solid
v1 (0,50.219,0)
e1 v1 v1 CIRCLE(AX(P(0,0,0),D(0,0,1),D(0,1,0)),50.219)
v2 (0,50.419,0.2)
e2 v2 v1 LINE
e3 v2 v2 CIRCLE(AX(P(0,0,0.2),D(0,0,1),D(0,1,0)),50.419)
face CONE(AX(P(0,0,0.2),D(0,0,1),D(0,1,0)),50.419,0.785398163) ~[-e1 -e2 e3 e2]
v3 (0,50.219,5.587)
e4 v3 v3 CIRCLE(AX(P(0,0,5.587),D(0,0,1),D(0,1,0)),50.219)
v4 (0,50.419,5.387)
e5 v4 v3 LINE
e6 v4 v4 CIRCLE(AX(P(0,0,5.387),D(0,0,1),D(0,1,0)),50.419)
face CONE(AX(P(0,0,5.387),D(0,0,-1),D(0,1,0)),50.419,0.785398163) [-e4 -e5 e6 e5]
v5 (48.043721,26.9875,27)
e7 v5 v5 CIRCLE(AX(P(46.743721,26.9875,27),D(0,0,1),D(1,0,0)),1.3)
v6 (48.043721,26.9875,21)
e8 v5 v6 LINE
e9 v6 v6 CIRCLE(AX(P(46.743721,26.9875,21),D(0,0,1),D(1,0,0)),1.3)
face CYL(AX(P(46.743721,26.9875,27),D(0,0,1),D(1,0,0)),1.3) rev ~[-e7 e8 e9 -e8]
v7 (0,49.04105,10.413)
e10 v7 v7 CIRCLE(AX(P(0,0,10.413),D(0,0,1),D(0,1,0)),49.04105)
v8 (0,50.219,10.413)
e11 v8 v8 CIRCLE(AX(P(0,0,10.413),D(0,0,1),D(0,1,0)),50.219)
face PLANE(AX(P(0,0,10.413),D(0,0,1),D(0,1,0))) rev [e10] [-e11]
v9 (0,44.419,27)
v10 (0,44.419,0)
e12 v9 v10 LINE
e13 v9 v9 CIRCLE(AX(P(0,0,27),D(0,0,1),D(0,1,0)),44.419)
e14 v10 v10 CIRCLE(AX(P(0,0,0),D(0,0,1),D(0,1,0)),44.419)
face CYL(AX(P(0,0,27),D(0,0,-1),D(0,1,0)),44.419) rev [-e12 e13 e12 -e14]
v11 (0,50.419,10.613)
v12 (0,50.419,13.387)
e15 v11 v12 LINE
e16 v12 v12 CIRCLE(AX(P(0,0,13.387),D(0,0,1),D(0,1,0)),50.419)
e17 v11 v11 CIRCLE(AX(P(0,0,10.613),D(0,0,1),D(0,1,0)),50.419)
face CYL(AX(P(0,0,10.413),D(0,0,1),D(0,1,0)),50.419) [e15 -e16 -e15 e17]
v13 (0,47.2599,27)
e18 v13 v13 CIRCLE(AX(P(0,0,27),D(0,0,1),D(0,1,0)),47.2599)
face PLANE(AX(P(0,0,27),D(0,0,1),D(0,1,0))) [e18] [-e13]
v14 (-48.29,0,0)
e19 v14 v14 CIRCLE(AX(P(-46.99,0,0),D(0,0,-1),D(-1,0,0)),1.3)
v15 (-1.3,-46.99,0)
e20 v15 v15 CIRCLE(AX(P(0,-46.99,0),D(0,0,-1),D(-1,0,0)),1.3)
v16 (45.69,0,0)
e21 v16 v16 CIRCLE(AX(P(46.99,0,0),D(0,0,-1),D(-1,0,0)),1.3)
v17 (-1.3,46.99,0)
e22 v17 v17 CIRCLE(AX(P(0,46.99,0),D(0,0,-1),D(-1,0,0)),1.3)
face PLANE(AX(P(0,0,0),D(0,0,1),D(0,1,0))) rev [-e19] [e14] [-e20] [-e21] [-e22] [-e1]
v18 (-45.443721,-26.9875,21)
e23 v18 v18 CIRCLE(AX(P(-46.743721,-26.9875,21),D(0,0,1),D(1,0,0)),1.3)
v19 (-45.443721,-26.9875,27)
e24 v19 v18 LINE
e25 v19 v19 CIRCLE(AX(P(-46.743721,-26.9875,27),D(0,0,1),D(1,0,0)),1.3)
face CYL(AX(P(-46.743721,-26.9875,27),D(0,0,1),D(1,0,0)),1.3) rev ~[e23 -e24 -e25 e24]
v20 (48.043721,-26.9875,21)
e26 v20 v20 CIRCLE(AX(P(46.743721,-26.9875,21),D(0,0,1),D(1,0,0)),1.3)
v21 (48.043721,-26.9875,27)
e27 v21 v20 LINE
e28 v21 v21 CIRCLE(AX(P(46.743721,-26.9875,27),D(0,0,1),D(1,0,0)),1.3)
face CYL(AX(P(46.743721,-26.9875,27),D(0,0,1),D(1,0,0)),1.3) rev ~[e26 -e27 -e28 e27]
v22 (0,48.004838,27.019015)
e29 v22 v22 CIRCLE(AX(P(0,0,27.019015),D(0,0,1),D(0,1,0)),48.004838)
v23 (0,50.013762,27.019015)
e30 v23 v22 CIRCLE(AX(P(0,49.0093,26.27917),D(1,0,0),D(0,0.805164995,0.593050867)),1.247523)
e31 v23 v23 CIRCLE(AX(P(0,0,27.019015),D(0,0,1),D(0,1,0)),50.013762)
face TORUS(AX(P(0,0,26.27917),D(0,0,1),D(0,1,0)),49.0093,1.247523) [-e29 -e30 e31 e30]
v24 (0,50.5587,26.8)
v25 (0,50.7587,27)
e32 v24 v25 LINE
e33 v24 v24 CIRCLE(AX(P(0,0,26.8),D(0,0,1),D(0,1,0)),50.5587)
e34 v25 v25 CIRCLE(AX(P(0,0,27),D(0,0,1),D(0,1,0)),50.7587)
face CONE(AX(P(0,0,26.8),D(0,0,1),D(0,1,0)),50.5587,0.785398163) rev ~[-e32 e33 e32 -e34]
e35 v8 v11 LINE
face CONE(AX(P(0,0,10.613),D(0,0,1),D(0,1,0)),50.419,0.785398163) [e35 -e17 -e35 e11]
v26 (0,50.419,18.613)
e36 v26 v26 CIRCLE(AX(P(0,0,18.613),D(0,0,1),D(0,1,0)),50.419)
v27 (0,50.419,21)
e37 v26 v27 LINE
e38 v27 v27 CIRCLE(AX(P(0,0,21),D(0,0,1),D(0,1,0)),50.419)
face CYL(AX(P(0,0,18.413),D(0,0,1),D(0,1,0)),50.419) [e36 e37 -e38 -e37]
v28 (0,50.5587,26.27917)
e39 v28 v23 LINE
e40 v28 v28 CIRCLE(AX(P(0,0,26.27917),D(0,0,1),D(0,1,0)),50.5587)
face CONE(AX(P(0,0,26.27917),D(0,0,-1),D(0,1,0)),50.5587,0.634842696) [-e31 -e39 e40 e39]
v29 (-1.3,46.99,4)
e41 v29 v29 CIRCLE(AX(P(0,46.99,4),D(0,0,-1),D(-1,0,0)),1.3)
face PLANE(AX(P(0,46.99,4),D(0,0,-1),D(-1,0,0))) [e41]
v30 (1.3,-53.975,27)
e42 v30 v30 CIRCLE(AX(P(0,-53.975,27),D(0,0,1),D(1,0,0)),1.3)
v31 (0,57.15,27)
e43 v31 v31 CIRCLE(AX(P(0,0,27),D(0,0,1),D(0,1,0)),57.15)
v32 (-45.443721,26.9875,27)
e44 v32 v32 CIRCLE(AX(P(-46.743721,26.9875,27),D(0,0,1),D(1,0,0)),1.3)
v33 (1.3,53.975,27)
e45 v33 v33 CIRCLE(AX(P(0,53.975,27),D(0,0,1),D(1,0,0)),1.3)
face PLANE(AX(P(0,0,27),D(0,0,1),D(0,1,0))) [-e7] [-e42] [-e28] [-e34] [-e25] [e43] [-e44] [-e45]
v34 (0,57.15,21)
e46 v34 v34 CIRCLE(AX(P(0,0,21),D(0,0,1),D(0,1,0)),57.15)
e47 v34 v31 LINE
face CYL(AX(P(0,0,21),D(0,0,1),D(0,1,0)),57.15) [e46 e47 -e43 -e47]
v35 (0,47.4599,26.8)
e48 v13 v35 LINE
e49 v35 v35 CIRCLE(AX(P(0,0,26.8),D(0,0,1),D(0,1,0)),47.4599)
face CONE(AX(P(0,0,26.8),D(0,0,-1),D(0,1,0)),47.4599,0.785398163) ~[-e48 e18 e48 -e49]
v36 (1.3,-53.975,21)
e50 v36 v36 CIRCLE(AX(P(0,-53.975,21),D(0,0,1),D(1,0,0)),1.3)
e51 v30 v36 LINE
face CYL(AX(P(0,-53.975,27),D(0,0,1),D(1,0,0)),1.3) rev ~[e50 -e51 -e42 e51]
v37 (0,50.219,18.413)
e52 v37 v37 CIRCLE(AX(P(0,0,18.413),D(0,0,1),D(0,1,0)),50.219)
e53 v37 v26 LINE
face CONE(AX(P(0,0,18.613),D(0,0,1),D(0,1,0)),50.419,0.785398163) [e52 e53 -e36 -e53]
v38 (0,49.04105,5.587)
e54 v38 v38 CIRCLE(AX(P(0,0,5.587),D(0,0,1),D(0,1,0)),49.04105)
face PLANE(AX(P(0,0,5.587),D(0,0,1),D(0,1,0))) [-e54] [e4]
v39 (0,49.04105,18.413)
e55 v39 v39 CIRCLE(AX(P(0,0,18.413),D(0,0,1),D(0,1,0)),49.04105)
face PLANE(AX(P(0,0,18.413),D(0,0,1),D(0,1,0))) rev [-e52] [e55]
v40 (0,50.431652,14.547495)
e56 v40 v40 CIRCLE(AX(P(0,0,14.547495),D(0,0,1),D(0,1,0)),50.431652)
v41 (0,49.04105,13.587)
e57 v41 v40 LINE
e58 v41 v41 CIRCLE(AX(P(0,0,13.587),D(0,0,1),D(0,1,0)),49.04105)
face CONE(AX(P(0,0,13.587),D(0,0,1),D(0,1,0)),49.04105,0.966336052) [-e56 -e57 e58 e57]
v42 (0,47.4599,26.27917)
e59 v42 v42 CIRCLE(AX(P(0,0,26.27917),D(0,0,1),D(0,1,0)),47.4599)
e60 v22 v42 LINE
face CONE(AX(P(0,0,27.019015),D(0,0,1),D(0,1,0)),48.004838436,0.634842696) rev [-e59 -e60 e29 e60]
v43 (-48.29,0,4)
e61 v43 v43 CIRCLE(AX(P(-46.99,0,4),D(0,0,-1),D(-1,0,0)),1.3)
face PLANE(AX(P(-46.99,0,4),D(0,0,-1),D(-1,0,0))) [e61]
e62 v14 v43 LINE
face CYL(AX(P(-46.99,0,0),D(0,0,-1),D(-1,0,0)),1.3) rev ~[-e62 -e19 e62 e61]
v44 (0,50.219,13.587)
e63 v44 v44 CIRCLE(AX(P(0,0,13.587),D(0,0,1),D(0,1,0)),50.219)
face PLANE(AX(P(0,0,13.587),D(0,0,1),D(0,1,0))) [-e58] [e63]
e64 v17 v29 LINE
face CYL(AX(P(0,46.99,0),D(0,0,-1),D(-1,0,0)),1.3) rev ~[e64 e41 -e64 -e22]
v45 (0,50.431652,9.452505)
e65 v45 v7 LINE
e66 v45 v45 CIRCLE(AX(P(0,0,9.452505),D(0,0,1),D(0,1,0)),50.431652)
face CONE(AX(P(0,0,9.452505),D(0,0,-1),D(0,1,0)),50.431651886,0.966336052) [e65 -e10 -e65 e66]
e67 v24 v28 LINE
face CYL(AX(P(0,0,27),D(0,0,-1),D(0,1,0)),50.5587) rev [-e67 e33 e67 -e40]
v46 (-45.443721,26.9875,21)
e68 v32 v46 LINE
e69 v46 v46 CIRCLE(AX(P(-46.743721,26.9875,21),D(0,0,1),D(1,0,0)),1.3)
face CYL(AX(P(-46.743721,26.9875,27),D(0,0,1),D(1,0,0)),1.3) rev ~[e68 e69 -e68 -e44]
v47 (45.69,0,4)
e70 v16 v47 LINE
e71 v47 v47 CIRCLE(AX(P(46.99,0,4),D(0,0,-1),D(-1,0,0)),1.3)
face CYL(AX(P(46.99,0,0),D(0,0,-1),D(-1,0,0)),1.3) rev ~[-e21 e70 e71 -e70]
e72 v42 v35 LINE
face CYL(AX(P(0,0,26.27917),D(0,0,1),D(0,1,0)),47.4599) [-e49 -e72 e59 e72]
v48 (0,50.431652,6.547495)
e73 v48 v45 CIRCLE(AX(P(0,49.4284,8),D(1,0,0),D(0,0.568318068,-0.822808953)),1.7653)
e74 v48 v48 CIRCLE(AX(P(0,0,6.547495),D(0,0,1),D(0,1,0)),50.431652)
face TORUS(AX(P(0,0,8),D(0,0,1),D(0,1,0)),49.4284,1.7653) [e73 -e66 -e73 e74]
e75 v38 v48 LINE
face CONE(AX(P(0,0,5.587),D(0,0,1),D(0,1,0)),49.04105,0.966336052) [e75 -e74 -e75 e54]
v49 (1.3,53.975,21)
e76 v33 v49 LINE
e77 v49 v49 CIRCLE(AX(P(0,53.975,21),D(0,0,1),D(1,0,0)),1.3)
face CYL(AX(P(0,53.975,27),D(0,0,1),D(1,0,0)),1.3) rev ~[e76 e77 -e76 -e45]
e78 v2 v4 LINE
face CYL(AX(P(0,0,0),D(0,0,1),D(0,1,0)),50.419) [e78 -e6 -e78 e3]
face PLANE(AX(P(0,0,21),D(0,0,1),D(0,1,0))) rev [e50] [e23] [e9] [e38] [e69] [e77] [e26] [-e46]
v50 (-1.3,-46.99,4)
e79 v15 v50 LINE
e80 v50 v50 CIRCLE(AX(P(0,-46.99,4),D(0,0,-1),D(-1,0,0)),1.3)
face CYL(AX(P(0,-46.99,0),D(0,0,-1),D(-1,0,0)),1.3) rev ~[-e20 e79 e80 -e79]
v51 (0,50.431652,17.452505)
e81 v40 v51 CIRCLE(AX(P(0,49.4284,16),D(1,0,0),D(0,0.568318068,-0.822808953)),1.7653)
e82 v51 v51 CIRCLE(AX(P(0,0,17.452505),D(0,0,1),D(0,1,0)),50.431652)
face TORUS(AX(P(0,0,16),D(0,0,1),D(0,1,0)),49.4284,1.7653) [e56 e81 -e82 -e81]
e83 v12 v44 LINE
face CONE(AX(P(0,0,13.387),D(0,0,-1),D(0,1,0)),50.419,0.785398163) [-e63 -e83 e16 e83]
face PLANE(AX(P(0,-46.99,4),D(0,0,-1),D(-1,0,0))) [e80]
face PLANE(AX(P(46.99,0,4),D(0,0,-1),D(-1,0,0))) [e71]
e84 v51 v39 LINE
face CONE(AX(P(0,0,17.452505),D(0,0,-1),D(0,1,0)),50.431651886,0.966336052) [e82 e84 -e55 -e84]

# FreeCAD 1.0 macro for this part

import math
import FreeCAD as App
import Part
import Sketcher

V = App.Vector


def edges_at(feature, points):
    """Names of the edges that pass closest to the given points."""
    edges = feature.Shape.Edges
    near = lambda p: min(range(len(edges)), key=lambda i: edges[i].distToShape(Part.Vertex(*p))[0])
    return sorted({f"Edge{near(p) + 1}" for p in points})

doc = App.newDocument("Part")
body = doc.addObject("PartDesign::Body", "Body")

# Sketch on YZ plane
sketch1 = body.newObject("Sketcher::SketchObject", "Sketch")
sketch1.AttachmentSupport = (doc.getObject("YZ_Plane"), [""])
sketch1.MapMode = "FlatFace"
sketch1.addGeometry([
    Part.LineSegment(V(50.419, 0, 0), V(50.419, 5.587, 0)),  # 0
    Part.LineSegment(V(50.419, 5.587, 0), V(49.04105, 5.587, 0)),  # 1
    Part.LineSegment(V(49.04105, 5.587, 0), V(50.431652, 6.547495, 0)),  # 2
    Part.ArcOfCircle(Part.Circle(V(49.4284, 8, 0), V(0, 0, 1), 1.7653), math.radians(-55.366977), math.radians(55.366977)),  # 3
    Part.LineSegment(V(50.431652, 9.452505, 0), V(49.04105, 10.413, 0)),  # 4
    Part.LineSegment(V(49.04105, 10.413, 0), V(50.419, 10.413, 0)),  # 5
    Part.LineSegment(V(50.419, 10.413, 0), V(50.419, 13.587, 0)),  # 6
    Part.LineSegment(V(50.419, 13.587, 0), V(49.04105, 13.587, 0)),  # 7
    Part.LineSegment(V(49.04105, 13.587, 0), V(50.431652, 14.547495, 0)),  # 8
    Part.ArcOfCircle(Part.Circle(V(49.4284, 16, 0), V(0, 0, 1), 1.7653), math.radians(-55.366977), math.radians(55.366977)),  # 9
    Part.LineSegment(V(50.431652, 17.452505, 0), V(49.04105, 18.413, 0)),  # 10
    Part.LineSegment(V(49.04105, 18.413, 0), V(50.419, 18.413, 0)),  # 11
    Part.LineSegment(V(50.419, 18.413, 0), V(50.419, 21, 0)),  # 12
    Part.LineSegment(V(50.419, 21, 0), V(57.15, 21, 0)),  # 13
    Part.LineSegment(V(57.15, 21, 0), V(57.15, 27, 0)),  # 14
    Part.LineSegment(V(57.15, 27, 0), V(50.5587, 27, 0)),  # 15
    Part.LineSegment(V(50.5587, 27, 0), V(50.5587, 26.27917, 0)),  # 16
    Part.LineSegment(V(50.5587, 26.27917, 0), V(50.013762, 27.019015, 0)),  # 17
    Part.ArcOfCircle(Part.Circle(V(49.0093, 26.27917, 0), V(0, 0, 1), 1.247523), math.radians(36.373807), math.radians(143.626193)),  # 18
    Part.LineSegment(V(48.004838, 27.019015, 0), V(47.4599, 26.27917, 0)),  # 19
    Part.LineSegment(V(47.4599, 26.27917, 0), V(47.4599, 27, 0)),  # 20
    Part.LineSegment(V(47.4599, 27, 0), V(44.419, 27, 0)),  # 21
    Part.LineSegment(V(44.419, 27, 0), V(44.419, 0, 0)),  # 22
    Part.LineSegment(V(44.419, 0, 0), V(50.419, 0, 0)),  # 23
], False)
sketch1.addConstraint([
    Sketcher.Constraint("Coincident", 0, 2, 1, 1),
    Sketcher.Constraint("Coincident", 1, 2, 2, 1),
    Sketcher.Constraint("Tangent", 2, 2, 3, 1),
    Sketcher.Constraint("Tangent", 3, 2, 4, 1),
    Sketcher.Constraint("Coincident", 4, 2, 5, 1),
    Sketcher.Constraint("Coincident", 5, 2, 6, 1),
    Sketcher.Constraint("Coincident", 6, 2, 7, 1),
    Sketcher.Constraint("Coincident", 7, 2, 8, 1),
    Sketcher.Constraint("Tangent", 8, 2, 9, 1),
    Sketcher.Constraint("Tangent", 9, 2, 10, 1),
    Sketcher.Constraint("Coincident", 10, 2, 11, 1),
    Sketcher.Constraint("Coincident", 11, 2, 12, 1),
    Sketcher.Constraint("Coincident", 12, 2, 13, 1),
    Sketcher.Constraint("Coincident", 13, 2, 14, 1),
    Sketcher.Constraint("Coincident", 14, 2, 15, 1),
    Sketcher.Constraint("Coincident", 15, 2, 16, 1),
    Sketcher.Constraint("Coincident", 16, 2, 17, 1),
    Sketcher.Constraint("Tangent", 17, 2, 18, 1),
    Sketcher.Constraint("Tangent", 18, 2, 19, 1),
    Sketcher.Constraint("Coincident", 19, 2, 20, 1),
    Sketcher.Constraint("Coincident", 20, 2, 21, 1),
    Sketcher.Constraint("Coincident", 21, 2, 22, 1),
    Sketcher.Constraint("Coincident", 22, 2, 23, 1),
    Sketcher.Constraint("Coincident", 23, 2, 0, 1),
    Sketcher.Constraint("Vertical", 0),
    Sketcher.Constraint("Horizontal", 1),
    Sketcher.Constraint("Horizontal", 5),
    Sketcher.Constraint("Vertical", 6),
    Sketcher.Constraint("Horizontal", 7),
    Sketcher.Constraint("Horizontal", 11),
    Sketcher.Constraint("Vertical", 12),
    Sketcher.Constraint("Horizontal", 13),
    Sketcher.Constraint("Vertical", 14),
    Sketcher.Constraint("Horizontal", 15),
    Sketcher.Constraint("Vertical", 16),
    Sketcher.Constraint("Vertical", 20),
    Sketcher.Constraint("Horizontal", 21),
    Sketcher.Constraint("Vertical", 22),
    Sketcher.Constraint("Horizontal", 23),
    Sketcher.Constraint("Equal", 3, 9),
    Sketcher.Constraint("PointOnObject", 22, 2, -1),
    Sketcher.Constraint("Parallel", 2, 8),
    Sketcher.Constraint("Parallel", 4, 10),
    Sketcher.Constraint("Horizontal", 18, 3, 16, 2),
    Sketcher.Constraint("Horizontal", 17, 2, 18, 2),
    Sketcher.Constraint("Horizontal", 16, 2, 19, 2),
    Sketcher.Constraint("Horizontal", 15, 2, 20, 2),
    Sketcher.Constraint("Vertical", 3, 3, 9, 3),
    Sketcher.Constraint("Vertical", 2, 2, 3, 2),
    Sketcher.Constraint("Vertical", 1, 2, 4, 2),
    Sketcher.Constraint("Vertical", 0, 2, 5, 2),
    Sketcher.Constraint("Vertical", 4, 2, 7, 2),
    Sketcher.Constraint("Vertical", 7, 2, 10, 2),
    Sketcher.Constraint("Vertical", 6, 2, 11, 2),
    Sketcher.Constraint("Equal", 23, 14),
    Sketcher.Constraint("DistanceX", 23, 1, 23, 2, 6.0),
    Sketcher.Constraint("DistanceY", 22, 2, 22, 1, 27.0),
    Sketcher.Constraint("DistanceY", -1, 1, 3, 3, 8.0),
    Sketcher.Constraint("DistanceY", -1, 1, 9, 3, 16.0),
    Sketcher.Constraint("Radius", 3, 1.7653),
    Sketcher.Constraint("DistanceX", 13, 1, 13, 2, 6.731),
    Sketcher.Constraint("DistanceY", 0, 1, 0, 2, 5.587),
    Sketcher.Constraint("DistanceX", -1, 1, 13, 2, 57.15),
    Sketcher.Constraint("DistanceX", 15, 2, 15, 1, 6.5913),
    Sketcher.Constraint("DistanceX", 21, 2, 21, 1, 3.0409),
    Sketcher.Constraint("Radius", 18, 1.247523),
    Sketcher.Constraint("DistanceX", 1, 2, 1, 1, 1.37795),
    Sketcher.Constraint("DistanceY", 16, 2, 16, 1, 0.72083),
    Sketcher.Constraint("DistanceX", -1, 1, 3, 3, 49.4284),
])
revolution = body.newObject("PartDesign::Revolution", "Revolution")
revolution.Profile = sketch1
revolution.ReferenceAxis = (sketch1, ["V_Axis"])
revolution.Angle = 360

# Sketch on XY plane
sketch2 = body.newObject("Sketcher::SketchObject", "Sketch001")
sketch2.AttachmentSupport = (doc.getObject("XY_Plane"), [""])
sketch2.MapMode = "FlatFace"
sketch2.AttachmentOffset = App.Placement(V(0, 0, 27), App.Rotation())
sketch2.addGeometry([
    Part.Circle(V(0, 53.975, 0), V(0, 0, 1), 1.3),  # 0
    Part.Circle(V(46.743721, 26.9875, 0), V(0, 0, 1), 1.3),  # 1
    Part.Circle(V(46.743721, -26.9875, 0), V(0, 0, 1), 1.3),  # 2
    Part.Circle(V(0, -53.975, 0), V(0, 0, 1), 1.3),  # 3
    Part.Circle(V(-46.743721, -26.9875, 0), V(0, 0, 1), 1.3),  # 4
    Part.Circle(V(-46.743721, 26.9875, 0), V(0, 0, 1), 1.3),  # 5
], False)
sketch2.addConstraint([
    Sketcher.Constraint("Equal", 0, 1),
    Sketcher.Constraint("Equal", 1, 2),
    Sketcher.Constraint("Equal", 2, 3),
    Sketcher.Constraint("Equal", 3, 4),
    Sketcher.Constraint("Equal", 4, 5),
    Sketcher.Constraint("Symmetric", 0, 3, 3, 3, -1, 1),
    Sketcher.Constraint("Symmetric", 1, 3, 4, 3, -1, 1),
    Sketcher.Constraint("Symmetric", 2, 3, 5, 3, -1, 1),
    Sketcher.Constraint("Symmetric", 2, 3, 4, 3, -2),
    Sketcher.Constraint("PointOnObject", 0, 3, -2),
    Sketcher.Constraint("Diameter", 0, 2.6),
    Sketcher.Constraint("DistanceY", 3, 3, 0, 3, 107.95),
    Sketcher.Constraint("DistanceY", 2, 3, 1, 3, 53.975),
    Sketcher.Constraint("DistanceX", -1, 1, 1, 3, 46.743721),
])
pocket1 = body.newObject("PartDesign::Pocket", "Pocket")
pocket1.Profile = sketch2
pocket1.Length = 6
doc.recompute()

chamfer = body.newObject("PartDesign::Chamfer", "Chamfer")
chamfer.Base = (pocket1, edges_at(pocket1, [
    (0, -47.46, 27),
    (0, -50.559, 27),
    (0, -50.419, 18.413),
    (0, -50.419, 13.587),
    (0, -50.419, 10.413),
    (0, -50.419, 5.587),
    (0, -50.419, 0),
]))
chamfer.Size = 0.2

# Sketch on XY plane
sketch3 = body.newObject("Sketcher::SketchObject", "Sketch002")
sketch3.AttachmentSupport = (doc.getObject("XY_Plane"), [""])
sketch3.MapMode = "FlatFace"
sketch3.addGeometry([
    Part.Circle(V(46.99, 0, 0), V(0, 0, 1), 1.3),
    Part.Circle(V(0, 46.99, 0), V(0, 0, 1), 1.3),
    Part.Circle(V(-46.99, 0, 0), V(0, 0, 1), 1.3),
    Part.Circle(V(0, -46.99, 0), V(0, 0, 1), 1.3),
], False)
sketch3.addConstraint([
    Sketcher.Constraint("Equal", 0, 1),
    Sketcher.Constraint("Equal", 1, 2),
    Sketcher.Constraint("Equal", 2, 3),
    Sketcher.Constraint("Symmetric", 0, 3, 2, 3, -1, 1),
    Sketcher.Constraint("Symmetric", 1, 3, 3, 3, -1, 1),
    Sketcher.Constraint("PointOnObject", 0, 3, -1),
    Sketcher.Constraint("PointOnObject", 1, 3, -2),
    Sketcher.Constraint("Diameter", 0, 2.6),
    Sketcher.Constraint("DistanceX", -1, 1, 0, 3, 46.99),
    Sketcher.Constraint("DistanceY", -1, 1, 1, 3, 46.99),
])
pocket2 = body.newObject("PartDesign::Pocket", "Pocket001")
pocket2.Profile = sketch3
pocket2.Length = 4
pocket2.Reversed = True

doc.recompute()
